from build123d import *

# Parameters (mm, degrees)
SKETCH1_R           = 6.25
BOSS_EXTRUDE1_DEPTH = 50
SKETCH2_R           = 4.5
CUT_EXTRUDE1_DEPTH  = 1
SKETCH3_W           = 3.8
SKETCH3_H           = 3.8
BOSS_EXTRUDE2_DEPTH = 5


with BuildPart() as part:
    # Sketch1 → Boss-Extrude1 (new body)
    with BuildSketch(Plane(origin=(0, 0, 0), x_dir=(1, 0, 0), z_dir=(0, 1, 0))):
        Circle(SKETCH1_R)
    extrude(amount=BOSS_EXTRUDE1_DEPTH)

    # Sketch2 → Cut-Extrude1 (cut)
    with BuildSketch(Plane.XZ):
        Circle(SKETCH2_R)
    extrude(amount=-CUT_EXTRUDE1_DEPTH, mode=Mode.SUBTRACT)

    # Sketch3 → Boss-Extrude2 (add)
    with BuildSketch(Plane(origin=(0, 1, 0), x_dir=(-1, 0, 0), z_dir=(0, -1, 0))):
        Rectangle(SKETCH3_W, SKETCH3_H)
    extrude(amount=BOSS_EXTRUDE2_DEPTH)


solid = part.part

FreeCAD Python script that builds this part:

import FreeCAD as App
import Part
import Sketcher
Q = App.Units.Quantity


def add_polygon(sketch, points):
    """Adds a closed chain of lines whose ends are joined by coincident constraints."""
    first, n = sketch.GeometryCount, len(points)
    for a, b in zip(points, points[1:] + points[:1]):
        sketch.addGeometry(Part.LineSegment(App.Vector(*a, 0), App.Vector(*b, 0)), False)
    for i in range(n):
        sketch.addConstraint(Sketcher.Constraint("Coincident", first + i, 2, first + (i + 1) % n, 1))

doc = App.newDocument("Part")
body = doc.addObject("PartDesign::Body", "Body")

# Sketch on XZ plane
sketch1 = body.newObject("Sketcher::SketchObject", "Sketch")
sketch1.AttachmentSupport = (doc.getObject("XZ_Plane"), [""])
sketch1.MapMode = "FlatFace"
sketch1.addGeometry(Part.Circle(App.Vector(0, 0, 0), App.Vector(0, 0, 1), 6), False)
sketch1.addConstraint([
    Sketcher.Constraint("Coincident", 0, 3, -1, 1),
    Sketcher.Constraint("Diameter", 0, Q("12.5 mm")),
])
pad1 = body.newObject("PartDesign::Pad", "Pad")
pad1.Profile = sketch1
pad1.Length = 50
pad1.Reversed = True

# Sketch on XZ plane
sketch2 = body.newObject("Sketcher::SketchObject", "Sketch001")
sketch2.AttachmentSupport = (doc.getObject("XZ_Plane"), [""])
sketch2.MapMode = "FlatFace"
sketch2.addGeometry(Part.Circle(App.Vector(0, 0, 0), App.Vector(0, 0, 1), 4.5), False)
sketch2.addConstraint([
    Sketcher.Constraint("Coincident", 0, 3, -1, 1),
    Sketcher.Constraint("Diameter", 0, Q("9 mm")),
])
pocket1 = body.newObject("PartDesign::Pocket", "Pocket")
pocket1.Profile = sketch2
pocket1.Length = 1

# Sketch on XZ plane
sketch3 = body.newObject("Sketcher::SketchObject", "Sketch002")
sketch3.AttachmentSupport = (doc.getObject("XZ_Plane"), [""])
sketch3.MapMode = "FlatFace"
sketch3.AttachmentOffset = App.Placement(App.Vector(0, 0, -1), App.Rotation())
add_polygon(sketch3, [(1.9, -1.9), (1.9, 1.9), (-1.9, 1.9), (-1.9, -1.9)])  # lines 0-3
sketch3.addConstraint([
    Sketcher.Constraint("Vertical", 0),
    Sketcher.Constraint("Horizontal", 1),
    Sketcher.Constraint("Vertical", 2),
    Sketcher.Constraint("Horizontal", 3),
    Sketcher.Constraint("Symmetric", 0, 2, 2, 2, -1, 1),
    Sketcher.Constraint("Equal", 3, 0),
    Sketcher.Constraint("DistanceX", 1, 2, 1, 1, Q("3.8 mm")),
])
pad2 = body.newObject("PartDesign::Pad", "Pad001")
pad2.Profile = sketch3
pad2.Length = 5

doc.recompute()
